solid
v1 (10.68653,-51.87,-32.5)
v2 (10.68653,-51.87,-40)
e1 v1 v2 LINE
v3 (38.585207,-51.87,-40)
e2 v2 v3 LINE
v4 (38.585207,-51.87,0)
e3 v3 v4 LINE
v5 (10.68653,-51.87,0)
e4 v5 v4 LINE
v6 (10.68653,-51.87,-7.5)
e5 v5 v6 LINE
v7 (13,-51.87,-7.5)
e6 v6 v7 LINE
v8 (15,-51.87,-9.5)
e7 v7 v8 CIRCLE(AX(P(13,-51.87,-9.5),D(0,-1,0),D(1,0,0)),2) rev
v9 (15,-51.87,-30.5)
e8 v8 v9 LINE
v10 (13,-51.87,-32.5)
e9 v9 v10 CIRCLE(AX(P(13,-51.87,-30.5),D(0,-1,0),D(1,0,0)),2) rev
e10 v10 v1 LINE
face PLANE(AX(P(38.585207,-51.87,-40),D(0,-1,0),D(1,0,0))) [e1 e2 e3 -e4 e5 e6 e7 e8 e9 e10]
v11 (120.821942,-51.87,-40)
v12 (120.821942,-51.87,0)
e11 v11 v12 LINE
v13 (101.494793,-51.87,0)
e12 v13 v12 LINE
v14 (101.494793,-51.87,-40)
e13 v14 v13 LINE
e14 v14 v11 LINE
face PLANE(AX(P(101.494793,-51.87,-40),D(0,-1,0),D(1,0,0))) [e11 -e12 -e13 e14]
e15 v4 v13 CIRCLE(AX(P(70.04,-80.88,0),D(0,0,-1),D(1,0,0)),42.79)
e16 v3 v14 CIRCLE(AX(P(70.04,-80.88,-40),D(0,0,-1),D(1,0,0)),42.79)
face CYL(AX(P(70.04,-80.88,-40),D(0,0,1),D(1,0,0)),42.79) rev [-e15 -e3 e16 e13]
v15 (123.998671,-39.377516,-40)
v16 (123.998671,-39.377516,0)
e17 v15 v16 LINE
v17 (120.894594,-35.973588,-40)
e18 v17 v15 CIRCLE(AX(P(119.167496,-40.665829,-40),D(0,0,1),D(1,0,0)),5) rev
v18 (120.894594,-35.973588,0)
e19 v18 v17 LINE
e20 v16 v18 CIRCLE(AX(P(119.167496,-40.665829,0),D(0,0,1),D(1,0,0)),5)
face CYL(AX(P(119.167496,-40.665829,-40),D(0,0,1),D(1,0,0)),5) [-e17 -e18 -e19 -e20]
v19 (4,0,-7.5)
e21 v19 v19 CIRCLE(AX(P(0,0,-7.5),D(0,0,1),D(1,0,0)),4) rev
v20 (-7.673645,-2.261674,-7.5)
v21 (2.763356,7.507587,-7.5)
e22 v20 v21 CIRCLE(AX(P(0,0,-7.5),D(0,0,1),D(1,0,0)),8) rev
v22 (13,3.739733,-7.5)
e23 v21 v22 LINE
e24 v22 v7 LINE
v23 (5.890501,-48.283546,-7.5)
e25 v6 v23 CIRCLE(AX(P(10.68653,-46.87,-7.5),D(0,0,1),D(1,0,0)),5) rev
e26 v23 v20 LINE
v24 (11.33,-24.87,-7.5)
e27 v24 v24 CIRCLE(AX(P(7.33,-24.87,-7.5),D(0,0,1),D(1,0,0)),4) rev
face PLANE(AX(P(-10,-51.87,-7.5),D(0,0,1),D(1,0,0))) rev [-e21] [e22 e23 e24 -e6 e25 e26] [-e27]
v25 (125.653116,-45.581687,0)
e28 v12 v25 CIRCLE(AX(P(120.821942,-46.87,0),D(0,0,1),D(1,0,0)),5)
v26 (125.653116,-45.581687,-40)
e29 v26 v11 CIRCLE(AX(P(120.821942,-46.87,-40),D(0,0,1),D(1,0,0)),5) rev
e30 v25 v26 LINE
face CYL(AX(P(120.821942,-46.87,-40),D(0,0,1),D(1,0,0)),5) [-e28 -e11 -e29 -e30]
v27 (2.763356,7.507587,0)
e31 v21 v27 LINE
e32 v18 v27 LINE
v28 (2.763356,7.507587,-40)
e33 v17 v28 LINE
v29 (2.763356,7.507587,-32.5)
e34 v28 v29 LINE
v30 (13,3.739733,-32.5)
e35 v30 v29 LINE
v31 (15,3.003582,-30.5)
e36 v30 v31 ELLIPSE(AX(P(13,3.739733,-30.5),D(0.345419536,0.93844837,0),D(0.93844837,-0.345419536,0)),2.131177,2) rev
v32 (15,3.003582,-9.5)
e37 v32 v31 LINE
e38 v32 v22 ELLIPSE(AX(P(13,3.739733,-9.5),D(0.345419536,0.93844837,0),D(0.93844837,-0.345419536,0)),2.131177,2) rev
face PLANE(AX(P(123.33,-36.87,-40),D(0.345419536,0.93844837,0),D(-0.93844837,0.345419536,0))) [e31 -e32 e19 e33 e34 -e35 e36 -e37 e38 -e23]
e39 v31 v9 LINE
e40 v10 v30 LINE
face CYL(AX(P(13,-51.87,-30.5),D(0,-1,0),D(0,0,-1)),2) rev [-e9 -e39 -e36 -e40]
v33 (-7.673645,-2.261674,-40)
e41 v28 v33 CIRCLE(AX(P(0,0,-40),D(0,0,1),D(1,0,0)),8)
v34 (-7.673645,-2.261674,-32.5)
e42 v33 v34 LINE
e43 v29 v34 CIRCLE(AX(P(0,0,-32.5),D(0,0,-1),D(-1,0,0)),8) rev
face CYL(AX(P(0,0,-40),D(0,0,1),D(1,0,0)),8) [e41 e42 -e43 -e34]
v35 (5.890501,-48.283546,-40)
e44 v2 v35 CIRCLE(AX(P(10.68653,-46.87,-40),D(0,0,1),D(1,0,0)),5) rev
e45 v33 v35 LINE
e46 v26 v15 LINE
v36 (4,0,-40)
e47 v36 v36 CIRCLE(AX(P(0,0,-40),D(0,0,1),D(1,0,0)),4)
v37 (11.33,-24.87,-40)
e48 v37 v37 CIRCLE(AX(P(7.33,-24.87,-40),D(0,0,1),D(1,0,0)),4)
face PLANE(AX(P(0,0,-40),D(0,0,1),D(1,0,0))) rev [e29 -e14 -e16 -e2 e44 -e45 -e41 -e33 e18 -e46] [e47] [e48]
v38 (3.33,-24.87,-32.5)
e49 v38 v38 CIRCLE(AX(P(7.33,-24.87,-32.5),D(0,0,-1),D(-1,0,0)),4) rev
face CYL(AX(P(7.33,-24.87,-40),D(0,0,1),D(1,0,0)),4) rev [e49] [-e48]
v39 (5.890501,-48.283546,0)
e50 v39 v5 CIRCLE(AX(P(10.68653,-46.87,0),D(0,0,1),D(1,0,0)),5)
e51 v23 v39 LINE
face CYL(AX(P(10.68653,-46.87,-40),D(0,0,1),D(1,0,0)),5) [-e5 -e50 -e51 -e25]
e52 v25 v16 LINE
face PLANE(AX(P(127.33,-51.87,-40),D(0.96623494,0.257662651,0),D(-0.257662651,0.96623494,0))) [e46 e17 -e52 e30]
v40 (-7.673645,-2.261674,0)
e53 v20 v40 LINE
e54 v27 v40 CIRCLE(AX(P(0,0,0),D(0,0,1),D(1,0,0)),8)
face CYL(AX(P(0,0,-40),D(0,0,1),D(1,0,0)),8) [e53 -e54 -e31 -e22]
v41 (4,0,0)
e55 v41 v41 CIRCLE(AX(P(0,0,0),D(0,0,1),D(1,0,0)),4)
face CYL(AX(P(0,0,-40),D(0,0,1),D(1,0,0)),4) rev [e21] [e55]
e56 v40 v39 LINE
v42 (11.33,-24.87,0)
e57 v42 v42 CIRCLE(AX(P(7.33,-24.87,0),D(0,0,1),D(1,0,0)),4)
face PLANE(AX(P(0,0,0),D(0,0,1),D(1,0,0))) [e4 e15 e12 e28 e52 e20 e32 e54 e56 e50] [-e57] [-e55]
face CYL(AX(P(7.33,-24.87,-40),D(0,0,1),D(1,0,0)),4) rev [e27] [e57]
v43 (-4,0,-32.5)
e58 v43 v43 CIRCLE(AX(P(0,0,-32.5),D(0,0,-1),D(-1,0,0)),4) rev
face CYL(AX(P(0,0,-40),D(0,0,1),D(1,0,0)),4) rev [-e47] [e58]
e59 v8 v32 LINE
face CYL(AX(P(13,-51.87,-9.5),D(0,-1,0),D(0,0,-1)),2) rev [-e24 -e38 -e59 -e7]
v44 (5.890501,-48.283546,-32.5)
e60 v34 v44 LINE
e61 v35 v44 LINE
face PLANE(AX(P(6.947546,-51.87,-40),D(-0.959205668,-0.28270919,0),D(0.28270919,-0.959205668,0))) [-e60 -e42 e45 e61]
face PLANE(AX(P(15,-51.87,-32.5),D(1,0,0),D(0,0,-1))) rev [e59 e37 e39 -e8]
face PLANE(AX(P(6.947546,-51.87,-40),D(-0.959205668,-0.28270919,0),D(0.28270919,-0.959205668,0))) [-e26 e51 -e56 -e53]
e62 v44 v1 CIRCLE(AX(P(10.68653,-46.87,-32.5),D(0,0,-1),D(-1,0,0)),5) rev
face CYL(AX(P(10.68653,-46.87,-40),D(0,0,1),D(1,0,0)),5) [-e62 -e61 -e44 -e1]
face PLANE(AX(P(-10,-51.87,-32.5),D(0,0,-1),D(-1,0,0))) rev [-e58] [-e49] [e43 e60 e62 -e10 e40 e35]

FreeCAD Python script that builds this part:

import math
import FreeCAD as App
import Part
import Sketcher

V = App.Vector
Q = App.Units.Quantity


def edges_at(feature, points):
    """Names of the edges that pass closest to the given points."""
    edges = feature.Shape.Edges
    near = lambda p: min(range(len(edges)), key=lambda i: edges[i].distToShape(Part.Vertex(*p))[0])
    return sorted({f"Edge{near(p) + 1}" for p in points})


def add_polygon(sketch, points):
    """Adds a closed chain of lines whose ends are joined by coincident constraints."""
    first, n = sketch.GeometryCount, len(points)
    for a, b in zip(points, points[1:] + points[:1]):
        sketch.addGeometry(Part.LineSegment(App.Vector(*a, 0), App.Vector(*b, 0)), False)
    for i in range(n):
        sketch.addConstraint(Sketcher.Constraint("Coincident", first + i, 2, first + (i + 1) % n, 1))

doc = App.newDocument("Part")
body = doc.addObject("PartDesign::Body", "Body")

# Sketch on XY plane
sketch1 = body.newObject("Sketcher::SketchObject", "Sketch")
sketch1.AttachmentSupport = (doc.getObject("XY_Plane"), [""])
sketch1.MapMode = "FlatFace"
sketch1.addGeometry([
    Part.LineSegment(V(-7.7, -2.3, 0), V(6.9, -51.9, 0)),  # 0
    Part.LineSegment(V(6.9, -51.9, 0), V(38.6, -51.9, 0)),  # 1
    Part.ArcOfCircle(Part.Circle(V(70, -80.9, 0), V(0, 0, 1), 42.8), math.radians(43), math.radians(137)),  # 2
    Part.LineSegment(V(101.5, -51.9, 0), V(127.3, -51.9, 0)),  # 3
    Part.LineSegment(V(127.3, -51.9, 0), V(123.3, -36.9, 0)),  # 4
    Part.LineSegment(V(123.3, -36.9, 0), V(2.8, 7.5, 0)),  # 5
    Part.ArcOfCircle(Part.Circle(V(0, 0, 0), V(0, 0, 1), 8), math.radians(70), math.radians(196)),  # 6
    Part.Circle(V(7.3, -24.9, 0), V(0, 0, 1), 4),  # 7
    Part.Circle(V(0, 0, 0), V(0, 0, 1), 4),  # 8
], False)
sketch1.addConstraint([
    Sketcher.Constraint("Coincident", 0, 2, 1, 1),
    Sketcher.Constraint("Coincident", 1, 2, 2, 2),
    Sketcher.Constraint("Coincident", 2, 1, 3, 1),
    Sketcher.Constraint("Coincident", 3, 2, 4, 1),
    Sketcher.Constraint("Coincident", 4, 2, 5, 1),
    Sketcher.Constraint("Tangent", 5, 2, 6, 1),
    Sketcher.Constraint("Tangent", 6, 2, 0, 1),
    Sketcher.Constraint("Horizontal", 1),
    Sketcher.Constraint("Horizontal", 3),
    Sketcher.Constraint("Coincident", 6, 3, -1, 1),
    Sketcher.Constraint("Coincident", 8, 3, -1, 1),
    Sketcher.Constraint("Equal", 7, 8),
    Sketcher.Constraint("Horizontal", 1, 2, 2, 1),
    Sketcher.Constraint("Diameter", 7, Q("8 mm")),
    Sketcher.Constraint("Radius", 6, Q("8 mm")),
    Sketcher.Constraint("Radius", 2, Q("42.79 mm")),
    Sketcher.Constraint("DistanceY", 0, 2, 7, 3, Q("27 mm")),
    Sketcher.Constraint("DistanceX", 7, 3, 3, 2, Q("120 mm")),
    Sketcher.Constraint("DistanceX", 4, 2, 3, 2, Q("4 mm")),
    Sketcher.Constraint("DistanceY", 3, 2, 4, 2, Q("15 mm")),
    Sketcher.Constraint("DistanceX", -1, 1, 2, 3, Q("70.04 mm")),
    Sketcher.Constraint("DistanceY", 2, 3, -1, 1, Q("80.88 mm")),
    Sketcher.Constraint("DistanceX", -1, 1, 7, 3, Q("7.33 mm")),
    Sketcher.Constraint("DistanceY", 7, 3, -1, 1, Q("24.87 mm")),
    Sketcher.Constraint("DistanceX", 6, 2, 5, 2, Q("10.437002 mm")),
])
pad1 = body.newObject("PartDesign::Pad", "Pad")
pad1.Profile = sketch1
pad1.Length = 40
pad1.Reversed = True
doc.recompute()

fillet = body.newObject("PartDesign::Fillet", "Fillet")
fillet.Base = (pad1, edges_at(pad1, [(6.948, -51.87, -20), (123.33, -36.87, -20), (127.33, -51.87, -20)]))
fillet.Radius = 5

# Sketch on XZ plane
sketch2 = body.newObject("Sketcher::SketchObject", "Sketch001")
sketch2.AttachmentSupport = (doc.getObject("XZ_Plane"), [""])
sketch2.MapMode = "FlatFace"
add_polygon(sketch2, [(-10, -32), (-10, -8), (15, -8), (15, -32)])  # lines 0-3
sketch2.addConstraint([
    Sketcher.Constraint("Vertical", 0),
    Sketcher.Constraint("Horizontal", 1),
    Sketcher.Constraint("Vertical", 2),
    Sketcher.Constraint("Horizontal", 3),
    Sketcher.Constraint("Equal", 3, 0),
    Sketcher.Constraint("DistanceX", 1, 1, 1, 2, Q("25 mm")),
    Sketcher.Constraint("DistanceX", 0, 2, -1, 1, Q("10 mm")),
    Sketcher.Constraint("DistanceY", 0, 2, -1, 1, Q("7.5 mm")),
])
pocket1 = body.newObject("PartDesign::Pocket", "Pocket")
pocket1.Profile = sketch2
pocket1.Type = "ThroughAll"
pocket1.Midplane = True
doc.recompute()

fillet2 = body.newObject("PartDesign::Fillet", "Fillet001")
fillet2.Base = (pocket1, edges_at(pocket1, [(15, -24.433, -7.5), (15, -24.433, -32.5)]))
fillet2.Radius = 2

doc.recompute()
